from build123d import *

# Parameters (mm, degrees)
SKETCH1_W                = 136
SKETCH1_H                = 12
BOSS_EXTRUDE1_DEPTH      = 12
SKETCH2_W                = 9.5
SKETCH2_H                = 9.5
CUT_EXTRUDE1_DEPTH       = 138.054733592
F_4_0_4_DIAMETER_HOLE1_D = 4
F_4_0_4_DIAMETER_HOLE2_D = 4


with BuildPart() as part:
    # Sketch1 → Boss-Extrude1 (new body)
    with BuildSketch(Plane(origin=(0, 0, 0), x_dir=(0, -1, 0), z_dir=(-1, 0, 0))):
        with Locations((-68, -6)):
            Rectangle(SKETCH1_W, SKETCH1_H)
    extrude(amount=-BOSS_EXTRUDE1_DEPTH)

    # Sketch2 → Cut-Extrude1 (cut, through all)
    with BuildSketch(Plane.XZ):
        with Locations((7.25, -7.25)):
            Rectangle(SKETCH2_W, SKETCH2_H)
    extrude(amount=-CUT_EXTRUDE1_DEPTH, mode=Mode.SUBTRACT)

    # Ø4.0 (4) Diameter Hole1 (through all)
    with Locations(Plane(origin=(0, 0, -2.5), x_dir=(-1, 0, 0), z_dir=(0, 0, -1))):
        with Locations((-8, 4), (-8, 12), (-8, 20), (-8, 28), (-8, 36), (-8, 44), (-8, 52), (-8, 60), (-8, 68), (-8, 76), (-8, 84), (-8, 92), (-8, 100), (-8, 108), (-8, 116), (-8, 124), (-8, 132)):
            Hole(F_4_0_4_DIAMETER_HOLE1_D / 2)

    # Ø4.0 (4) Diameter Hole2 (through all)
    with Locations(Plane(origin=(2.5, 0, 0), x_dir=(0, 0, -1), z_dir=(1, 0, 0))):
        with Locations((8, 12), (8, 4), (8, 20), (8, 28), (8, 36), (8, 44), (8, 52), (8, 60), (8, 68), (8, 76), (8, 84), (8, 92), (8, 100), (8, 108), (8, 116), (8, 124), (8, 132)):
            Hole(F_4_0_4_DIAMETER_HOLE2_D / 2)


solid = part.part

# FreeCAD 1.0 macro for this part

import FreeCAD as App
import Part
import Sketcher
from FreeCAD import Vector

doc = App.newDocument("Part")
body = doc.addObject("PartDesign::Body", "Body")

sketch1 = doc.addObject("Sketcher::SketchObject", "Sketch")
body.addObject(sketch1)
sketch1.AttachmentSupport = (doc.YZ_Plane, [""])
sketch1.MapMode = "FlatFace"
sketch1.addGeometry(Part.LineSegment(Vector(136, 0, 0), Vector(136, -12, 0)), False)
sketch1.addGeometry(Part.LineSegment(Vector(136, -12, 0), Vector(0, -12, 0)), False)
sketch1.addGeometry(Part.LineSegment(Vector(0, -12, 0), Vector(0, 0, 0)), False)
sketch1.addGeometry(Part.LineSegment(Vector(0, 0, 0), Vector(136, 0, 0)), False)
sketch1.addConstraint(Sketcher.Constraint("Coincident", 0, 2, 1, 1))
sketch1.addConstraint(Sketcher.Constraint("Coincident", 1, 2, 2, 1))
sketch1.addConstraint(Sketcher.Constraint("Coincident", 2, 2, 3, 1))
sketch1.addConstraint(Sketcher.Constraint("Coincident", 3, 2, 0, 1))
sketch1.addConstraint(Sketcher.Constraint("Vertical", 0))
sketch1.addConstraint(Sketcher.Constraint("Horizontal", 1))
sketch1.addConstraint(Sketcher.Constraint("Vertical", 2))
sketch1.addConstraint(Sketcher.Constraint("Horizontal", 3))
sketch1.addConstraint(Sketcher.Constraint("Coincident", 2, 2, -1, 1))
sketch1.addConstraint(Sketcher.Constraint("DistanceX", 1, 2, 1, 1, 136.0))
sketch1.addConstraint(Sketcher.Constraint("DistanceY", 0, 2, 0, 1, 12.0))
pad1 = doc.addObject("PartDesign::Pad", "Pad")
body.addObject(pad1)
pad1.Profile = sketch1
pad1.Length = 12

sketch2 = doc.addObject("Sketcher::SketchObject", "Sketch001")
body.addObject(sketch2)
sketch2.AttachmentSupport = (doc.XZ_Plane, [""])
sketch2.MapMode = "FlatFace"
sketch2.addGeometry(Part.LineSegment(Vector(2, -2, 0), Vector(2, -12, 0)), False)
sketch2.addGeometry(Part.LineSegment(Vector(2, -12, 0), Vector(12, -12, 0)), False)
sketch2.addGeometry(Part.LineSegment(Vector(12, -12, 0), Vector(12, -2, 0)), False)
sketch2.addGeometry(Part.LineSegment(Vector(12, -2, 0), Vector(2, -2, 0)), False)
sketch2.addConstraint(Sketcher.Constraint("Coincident", 0, 2, 1, 1))
sketch2.addConstraint(Sketcher.Constraint("Coincident", 1, 2, 2, 1))
sketch2.addConstraint(Sketcher.Constraint("Coincident", 2, 2, 3, 1))
sketch2.addConstraint(Sketcher.Constraint("Coincident", 3, 2, 0, 1))
sketch2.addConstraint(Sketcher.Constraint("Vertical", 0))
sketch2.addConstraint(Sketcher.Constraint("Horizontal", 1))
sketch2.addConstraint(Sketcher.Constraint("Vertical", 2))
sketch2.addConstraint(Sketcher.Constraint("Horizontal", 3))
sketch2.addConstraint(Sketcher.Constraint("Equal", 3, 0))
sketch2.addConstraint(Sketcher.Constraint("DistanceX", 1, 1, 1, 2, 9.5))
sketch2.addConstraint(Sketcher.Constraint("DistanceY", 0, 2, -1, 1, 12.0))
sketch2.addConstraint(Sketcher.Constraint("DistanceX", -1, 1, 1, 2, 12.0))
pocket1 = doc.addObject("PartDesign::Pocket", "Pocket")
body.addObject(pocket1)
pocket1.Profile = sketch2
pocket1.Type = "ThroughAll"

sketch3 = doc.addObject("Sketcher::SketchObject", "Sketch002")
body.addObject(sketch3)
sketch3.AttachmentSupport = (doc.XY_Plane, [""])
sketch3.MapMode = "FlatFace"
sketch3.AttachmentOffset = App.Placement(Vector(0, 0, -2.5), App.Rotation())
sketch3.addGeometry(Part.Circle(Vector(8, 4, 0), Vector(0, 0, 1), 2), False)
sketch3.addGeometry(Part.Circle(Vector(8, 12, 0), Vector(0, 0, 1), 2), False)
sketch3.addGeometry(Part.Circle(Vector(8, 20, 0), Vector(0, 0, 1), 2), False)
sketch3.addGeometry(Part.Circle(Vector(8, 28, 0), Vector(0, 0, 1), 2), False)
sketch3.addGeometry(Part.Circle(Vector(8, 36, 0), Vector(0, 0, 1), 2), False)
sketch3.addGeometry(Part.Circle(Vector(8, 44, 0), Vector(0, 0, 1), 2), False)
sketch3.addGeometry(Part.Circle(Vector(8, 52, 0), Vector(0, 0, 1), 2), False)
sketch3.addGeometry(Part.Circle(Vector(8, 60, 0), Vector(0, 0, 1), 2), False)
sketch3.addGeometry(Part.Circle(Vector(8, 68, 0), Vector(0, 0, 1), 2), False)
sketch3.addGeometry(Part.Circle(Vector(8, 76, 0), Vector(0, 0, 1), 2), False)
sketch3.addGeometry(Part.Circle(Vector(8, 84, 0), Vector(0, 0, 1), 2), False)
sketch3.addGeometry(Part.Circle(Vector(8, 92, 0), Vector(0, 0, 1), 2), False)
sketch3.addGeometry(Part.Circle(Vector(8, 100, 0), Vector(0, 0, 1), 2), False)
sketch3.addGeometry(Part.Circle(Vector(8, 108, 0), Vector(0, 0, 1), 2), False)
sketch3.addGeometry(Part.Circle(Vector(8, 116, 0), Vector(0, 0, 1), 2), False)
sketch3.addGeometry(Part.Circle(Vector(8, 124, 0), Vector(0, 0, 1), 2), False)
sketch3.addGeometry(Part.Circle(Vector(8, 132, 0), Vector(0, 0, 1), 2), False)
sketch3.addConstraint(Sketcher.Constraint("Equal", 0, 1))
sketch3.addConstraint(Sketcher.Constraint("Equal", 1, 2))
sketch3.addConstraint(Sketcher.Constraint("Equal", 2, 3))
sketch3.addConstraint(Sketcher.Constraint("Equal", 3, 4))
sketch3.addConstraint(Sketcher.Constraint("Equal", 4, 5))
sketch3.addConstraint(Sketcher.Constraint("Equal", 5, 6))
sketch3.addConstraint(Sketcher.Constraint("Equal", 6, 7))
sketch3.addConstraint(Sketcher.Constraint("Equal", 7, 8))
sketch3.addConstraint(Sketcher.Constraint("Equal", 8, 9))
sketch3.addConstraint(Sketcher.Constraint("Equal", 9, 10))
sketch3.addConstraint(Sketcher.Constraint("Equal", 10, 11))
sketch3.addConstraint(Sketcher.Constraint("Equal", 11, 12))
sketch3.addConstraint(Sketcher.Constraint("Equal", 12, 13))
sketch3.addConstraint(Sketcher.Constraint("Equal", 13, 14))
sketch3.addConstraint(Sketcher.Constraint("Equal", 14, 15))
sketch3.addConstraint(Sketcher.Constraint("Equal", 15, 16))
sketch3.addConstraint(Sketcher.Constraint("Vertical", 0, 3, 1, 3))
sketch3.addConstraint(Sketcher.Constraint("Vertical", 1, 3, 2, 3))
sketch3.addConstraint(Sketcher.Constraint("Vertical", 2, 3, 3, 3))
sketch3.addConstraint(Sketcher.Constraint("Vertical", 3, 3, 4, 3))
sketch3.addConstraint(Sketcher.Constraint("Vertical", 4, 3, 5, 3))
sketch3.addConstraint(Sketcher.Constraint("Vertical", 5, 3, 6, 3))
sketch3.addConstraint(Sketcher.Constraint("Vertical", 6, 3, 7, 3))
sketch3.addConstraint(Sketcher.Constraint("Vertical", 7, 3, 8, 3))
sketch3.addConstraint(Sketcher.Constraint("Vertical", 8, 3, 9, 3))
sketch3.addConstraint(Sketcher.Constraint("Vertical", 9, 3, 10, 3))
sketch3.addConstraint(Sketcher.Constraint("Vertical", 10, 3, 11, 3))
sketch3.addConstraint(Sketcher.Constraint("Vertical", 11, 3, 12, 3))
sketch3.addConstraint(Sketcher.Constraint("Vertical", 12, 3, 13, 3))
sketch3.addConstraint(Sketcher.Constraint("Vertical", 13, 3, 14, 3))
sketch3.addConstraint(Sketcher.Constraint("Vertical", 14, 3, 15, 3))
sketch3.addConstraint(Sketcher.Constraint("Vertical", 15, 3, 16, 3))
sketch3.addConstraint(Sketcher.Constraint("Diameter", 0, 4.0))
sketch3.addConstraint(Sketcher.Constraint("DistanceX", -1, 1, 0, 3, 8.0))
sketch3.addConstraint(Sketcher.Constraint("DistanceY", -1, 1, 0, 3, 4.0))
sketch3.addConstraint(Sketcher.Constraint("DistanceY", -1, 1, 1, 3, 12.0))
sketch3.addConstraint(Sketcher.Constraint("DistanceY", -1, 1, 2, 3, 20.0))
sketch3.addConstraint(Sketcher.Constraint("DistanceY", -1, 1, 3, 3, 28.0))
sketch3.addConstraint(Sketcher.Constraint("DistanceY", -1, 1, 4, 3, 36.0))
sketch3.addConstraint(Sketcher.Constraint("DistanceY", -1, 1, 5, 3, 44.0))
sketch3.addConstraint(Sketcher.Constraint("DistanceY", -1, 1, 6, 3, 52.0))
sketch3.addConstraint(Sketcher.Constraint("DistanceY", -1, 1, 7, 3, 60.0))
sketch3.addConstraint(Sketcher.Constraint("DistanceY", -1, 1, 8, 3, 68.0))
sketch3.addConstraint(Sketcher.Constraint("DistanceY", -1, 1, 9, 3, 76.0))
sketch3.addConstraint(Sketcher.Constraint("DistanceY", -1, 1, 10, 3, 84.0))
sketch3.addConstraint(Sketcher.Constraint("DistanceY", -1, 1, 11, 3, 92.0))
sketch3.addConstraint(Sketcher.Constraint("DistanceY", -1, 1, 12, 3, 100.0))
sketch3.addConstraint(Sketcher.Constraint("DistanceY", -1, 1, 13, 3, 108.0))
sketch3.addConstraint(Sketcher.Constraint("DistanceY", -1, 1, 14, 3, 116.0))
sketch3.addConstraint(Sketcher.Constraint("DistanceY", -1, 1, 15, 3, 124.0))
sketch3.addConstraint(Sketcher.Constraint("DistanceY", -1, 1, 16, 3, 132.0))
doc.recompute()
hole = doc.addObject("PartDesign::Hole", "Hole")
body.addObject(hole)
hole.Profile = sketch3
hole.ThreadType = "None"
hole.Diameter = 4
hole.DepthType = "ThroughAll"
hole.Reversed = True

sketch4 = doc.addObject("Sketcher::SketchObject", "Sketch003")
body.addObject(sketch4)
sketch4.AttachmentSupport = (doc.YZ_Plane, [""])
sketch4.MapMode = "FlatFace"
sketch4.AttachmentOffset = App.Placement(Vector(0, 0, 2.5), App.Rotation())
sketch4.addGeometry(Part.Circle(Vector(12, -8, 0), Vector(0, 0, 1), 2), False)
sketch4.addGeometry(Part.Circle(Vector(4, -8, 0), Vector(0, 0, 1), 2), False)
sketch4.addGeometry(Part.Circle(Vector(20, -8, 0), Vector(0, 0, 1), 2), False)
sketch4.addGeometry(Part.Circle(Vector(28, -8, 0), Vector(0, 0, 1), 2), False)
sketch4.addGeometry(Part.Circle(Vector(36, -8, 0), Vector(0, 0, 1), 2), False)
sketch4.addGeometry(Part.Circle(Vector(44, -8, 0), Vector(0, 0, 1), 2), False)
sketch4.addGeometry(Part.Circle(Vector(52, -8, 0), Vector(0, 0, 1), 2), False)
sketch4.addGeometry(Part.Circle(Vector(60, -8, 0), Vector(0, 0, 1), 2), False)
sketch4.addGeometry(Part.Circle(Vector(68, -8, 0), Vector(0, 0, 1), 2), False)
sketch4.addGeometry(Part.Circle(Vector(76, -8, 0), Vector(0, 0, 1), 2), False)
sketch4.addGeometry(Part.Circle(Vector(84, -8, 0), Vector(0, 0, 1), 2), False)
sketch4.addGeometry(Part.Circle(Vector(92, -8, 0), Vector(0, 0, 1), 2), False)
sketch4.addGeometry(Part.Circle(Vector(100, -8, 0), Vector(0, 0, 1), 2), False)
sketch4.addGeometry(Part.Circle(Vector(108, -8, 0), Vector(0, 0, 1), 2), False)
sketch4.addGeometry(Part.Circle(Vector(116, -8, 0), Vector(0, 0, 1), 2), False)
sketch4.addGeometry(Part.Circle(Vector(124, -8, 0), Vector(0, 0, 1), 2), False)
sketch4.addGeometry(Part.Circle(Vector(132, -8, 0), Vector(0, 0, 1), 2), False)
sketch4.addConstraint(Sketcher.Constraint("Equal", 0, 1))
sketch4.addConstraint(Sketcher.Constraint("Equal", 1, 2))
sketch4.addConstraint(Sketcher.Constraint("Equal", 2, 3))
sketch4.addConstraint(Sketcher.Constraint("Equal", 3, 4))
sketch4.addConstraint(Sketcher.Constraint("Equal", 4, 5))
sketch4.addConstraint(Sketcher.Constraint("Equal", 5, 6))
sketch4.addConstraint(Sketcher.Constraint("Equal", 6, 7))
sketch4.addConstraint(Sketcher.Constraint("Equal", 7, 8))
sketch4.addConstraint(Sketcher.Constraint("Equal", 8, 9))
sketch4.addConstraint(Sketcher.Constraint("Equal", 9, 10))
sketch4.addConstraint(Sketcher.Constraint("Equal", 10, 11))
sketch4.addConstraint(Sketcher.Constraint("Equal", 11, 12))
sketch4.addConstraint(Sketcher.Constraint("Equal", 12, 13))
sketch4.addConstraint(Sketcher.Constraint("Equal", 13, 14))
sketch4.addConstraint(Sketcher.Constraint("Equal", 14, 15))
sketch4.addConstraint(Sketcher.Constraint("Equal", 15, 16))
sketch4.addConstraint(Sketcher.Constraint("Horizontal", 0, 3, 1, 3))
sketch4.addConstraint(Sketcher.Constraint("Horizontal", 1, 3, 2, 3))
sketch4.addConstraint(Sketcher.Constraint("Horizontal", 2, 3, 3, 3))
sketch4.addConstraint(Sketcher.Constraint("Horizontal", 3, 3, 4, 3))
sketch4.addConstraint(Sketcher.Constraint("Horizontal", 4, 3, 5, 3))
sketch4.addConstraint(Sketcher.Constraint("Horizontal", 5, 3, 6, 3))
sketch4.addConstraint(Sketcher.Constraint("Horizontal", 6, 3, 7, 3))
sketch4.addConstraint(Sketcher.Constraint("Horizontal", 7, 3, 8, 3))
sketch4.addConstraint(Sketcher.Constraint("Horizontal", 8, 3, 9, 3))
sketch4.addConstraint(Sketcher.Constraint("Horizontal", 9, 3, 10, 3))
sketch4.addConstraint(Sketcher.Constraint("Horizontal", 10, 3, 11, 3))
sketch4.addConstraint(Sketcher.Constraint("Horizontal", 11, 3, 12, 3))
sketch4.addConstraint(Sketcher.Constraint("Horizontal", 12, 3, 13, 3))
sketch4.addConstraint(Sketcher.Constraint("Horizontal", 13, 3, 14, 3))
sketch4.addConstraint(Sketcher.Constraint("Horizontal", 14, 3, 15, 3))
sketch4.addConstraint(Sketcher.Constraint("Horizontal", 15, 3, 16, 3))
sketch4.addConstraint(Sketcher.Constraint("Diameter", 0, 4.0))
sketch4.addConstraint(Sketcher.Constraint("DistanceX", -1, 1, 0, 3, 12.0))
sketch4.addConstraint(Sketcher.Constraint("DistanceY", 0, 3, -1, 1, 8.0))
sketch4.addConstraint(Sketcher.Constraint("DistanceX", -1, 1, 1, 3, 4.0))
sketch4.addConstraint(Sketcher.Constraint("DistanceX", -1, 1, 2, 3, 20.0))
sketch4.addConstraint(Sketcher.Constraint("DistanceX", -1, 1, 3, 3, 28.0))
sketch4.addConstraint(Sketcher.Constraint("DistanceX", -1, 1, 4, 3, 36.0))
sketch4.addConstraint(Sketcher.Constraint("DistanceX", -1, 1, 5, 3, 44.0))
sketch4.addConstraint(Sketcher.Constraint("DistanceX", -1, 1, 6, 3, 52.0))
sketch4.addConstraint(Sketcher.Constraint("DistanceX", -1, 1, 7, 3, 60.0))
sketch4.addConstraint(Sketcher.Constraint("DistanceX", -1, 1, 8, 3, 68.0))
sketch4.addConstraint(Sketcher.Constraint("DistanceX", -1, 1, 9, 3, 76.0))
sketch4.addConstraint(Sketcher.Constraint("DistanceX", -1, 1, 10, 3, 84.0))
sketch4.addConstraint(Sketcher.Constraint("DistanceX", -1, 1, 11, 3, 92.0))
sketch4.addConstraint(Sketcher.Constraint("DistanceX", -1, 1, 12, 3, 100.0))
sketch4.addConstraint(Sketcher.Constraint("DistanceX", -1, 1, 13, 3, 108.0))
sketch4.addConstraint(Sketcher.Constraint("DistanceX", -1, 1, 14, 3, 116.0))
sketch4.addConstraint(Sketcher.Constraint("DistanceX", -1, 1, 15, 3, 124.0))
sketch4.addConstraint(Sketcher.Constraint("DistanceX", -1, 1, 16, 3, 132.0))
doc.recompute()
hole2 = doc.addObject("PartDesign::Hole", "Hole001")
body.addObject(hole2)
hole2.Profile = sketch4
hole2.ThreadType = "None"
hole2.Diameter = 4
hole2.DepthType = "ThroughAll"

doc.recompute()
